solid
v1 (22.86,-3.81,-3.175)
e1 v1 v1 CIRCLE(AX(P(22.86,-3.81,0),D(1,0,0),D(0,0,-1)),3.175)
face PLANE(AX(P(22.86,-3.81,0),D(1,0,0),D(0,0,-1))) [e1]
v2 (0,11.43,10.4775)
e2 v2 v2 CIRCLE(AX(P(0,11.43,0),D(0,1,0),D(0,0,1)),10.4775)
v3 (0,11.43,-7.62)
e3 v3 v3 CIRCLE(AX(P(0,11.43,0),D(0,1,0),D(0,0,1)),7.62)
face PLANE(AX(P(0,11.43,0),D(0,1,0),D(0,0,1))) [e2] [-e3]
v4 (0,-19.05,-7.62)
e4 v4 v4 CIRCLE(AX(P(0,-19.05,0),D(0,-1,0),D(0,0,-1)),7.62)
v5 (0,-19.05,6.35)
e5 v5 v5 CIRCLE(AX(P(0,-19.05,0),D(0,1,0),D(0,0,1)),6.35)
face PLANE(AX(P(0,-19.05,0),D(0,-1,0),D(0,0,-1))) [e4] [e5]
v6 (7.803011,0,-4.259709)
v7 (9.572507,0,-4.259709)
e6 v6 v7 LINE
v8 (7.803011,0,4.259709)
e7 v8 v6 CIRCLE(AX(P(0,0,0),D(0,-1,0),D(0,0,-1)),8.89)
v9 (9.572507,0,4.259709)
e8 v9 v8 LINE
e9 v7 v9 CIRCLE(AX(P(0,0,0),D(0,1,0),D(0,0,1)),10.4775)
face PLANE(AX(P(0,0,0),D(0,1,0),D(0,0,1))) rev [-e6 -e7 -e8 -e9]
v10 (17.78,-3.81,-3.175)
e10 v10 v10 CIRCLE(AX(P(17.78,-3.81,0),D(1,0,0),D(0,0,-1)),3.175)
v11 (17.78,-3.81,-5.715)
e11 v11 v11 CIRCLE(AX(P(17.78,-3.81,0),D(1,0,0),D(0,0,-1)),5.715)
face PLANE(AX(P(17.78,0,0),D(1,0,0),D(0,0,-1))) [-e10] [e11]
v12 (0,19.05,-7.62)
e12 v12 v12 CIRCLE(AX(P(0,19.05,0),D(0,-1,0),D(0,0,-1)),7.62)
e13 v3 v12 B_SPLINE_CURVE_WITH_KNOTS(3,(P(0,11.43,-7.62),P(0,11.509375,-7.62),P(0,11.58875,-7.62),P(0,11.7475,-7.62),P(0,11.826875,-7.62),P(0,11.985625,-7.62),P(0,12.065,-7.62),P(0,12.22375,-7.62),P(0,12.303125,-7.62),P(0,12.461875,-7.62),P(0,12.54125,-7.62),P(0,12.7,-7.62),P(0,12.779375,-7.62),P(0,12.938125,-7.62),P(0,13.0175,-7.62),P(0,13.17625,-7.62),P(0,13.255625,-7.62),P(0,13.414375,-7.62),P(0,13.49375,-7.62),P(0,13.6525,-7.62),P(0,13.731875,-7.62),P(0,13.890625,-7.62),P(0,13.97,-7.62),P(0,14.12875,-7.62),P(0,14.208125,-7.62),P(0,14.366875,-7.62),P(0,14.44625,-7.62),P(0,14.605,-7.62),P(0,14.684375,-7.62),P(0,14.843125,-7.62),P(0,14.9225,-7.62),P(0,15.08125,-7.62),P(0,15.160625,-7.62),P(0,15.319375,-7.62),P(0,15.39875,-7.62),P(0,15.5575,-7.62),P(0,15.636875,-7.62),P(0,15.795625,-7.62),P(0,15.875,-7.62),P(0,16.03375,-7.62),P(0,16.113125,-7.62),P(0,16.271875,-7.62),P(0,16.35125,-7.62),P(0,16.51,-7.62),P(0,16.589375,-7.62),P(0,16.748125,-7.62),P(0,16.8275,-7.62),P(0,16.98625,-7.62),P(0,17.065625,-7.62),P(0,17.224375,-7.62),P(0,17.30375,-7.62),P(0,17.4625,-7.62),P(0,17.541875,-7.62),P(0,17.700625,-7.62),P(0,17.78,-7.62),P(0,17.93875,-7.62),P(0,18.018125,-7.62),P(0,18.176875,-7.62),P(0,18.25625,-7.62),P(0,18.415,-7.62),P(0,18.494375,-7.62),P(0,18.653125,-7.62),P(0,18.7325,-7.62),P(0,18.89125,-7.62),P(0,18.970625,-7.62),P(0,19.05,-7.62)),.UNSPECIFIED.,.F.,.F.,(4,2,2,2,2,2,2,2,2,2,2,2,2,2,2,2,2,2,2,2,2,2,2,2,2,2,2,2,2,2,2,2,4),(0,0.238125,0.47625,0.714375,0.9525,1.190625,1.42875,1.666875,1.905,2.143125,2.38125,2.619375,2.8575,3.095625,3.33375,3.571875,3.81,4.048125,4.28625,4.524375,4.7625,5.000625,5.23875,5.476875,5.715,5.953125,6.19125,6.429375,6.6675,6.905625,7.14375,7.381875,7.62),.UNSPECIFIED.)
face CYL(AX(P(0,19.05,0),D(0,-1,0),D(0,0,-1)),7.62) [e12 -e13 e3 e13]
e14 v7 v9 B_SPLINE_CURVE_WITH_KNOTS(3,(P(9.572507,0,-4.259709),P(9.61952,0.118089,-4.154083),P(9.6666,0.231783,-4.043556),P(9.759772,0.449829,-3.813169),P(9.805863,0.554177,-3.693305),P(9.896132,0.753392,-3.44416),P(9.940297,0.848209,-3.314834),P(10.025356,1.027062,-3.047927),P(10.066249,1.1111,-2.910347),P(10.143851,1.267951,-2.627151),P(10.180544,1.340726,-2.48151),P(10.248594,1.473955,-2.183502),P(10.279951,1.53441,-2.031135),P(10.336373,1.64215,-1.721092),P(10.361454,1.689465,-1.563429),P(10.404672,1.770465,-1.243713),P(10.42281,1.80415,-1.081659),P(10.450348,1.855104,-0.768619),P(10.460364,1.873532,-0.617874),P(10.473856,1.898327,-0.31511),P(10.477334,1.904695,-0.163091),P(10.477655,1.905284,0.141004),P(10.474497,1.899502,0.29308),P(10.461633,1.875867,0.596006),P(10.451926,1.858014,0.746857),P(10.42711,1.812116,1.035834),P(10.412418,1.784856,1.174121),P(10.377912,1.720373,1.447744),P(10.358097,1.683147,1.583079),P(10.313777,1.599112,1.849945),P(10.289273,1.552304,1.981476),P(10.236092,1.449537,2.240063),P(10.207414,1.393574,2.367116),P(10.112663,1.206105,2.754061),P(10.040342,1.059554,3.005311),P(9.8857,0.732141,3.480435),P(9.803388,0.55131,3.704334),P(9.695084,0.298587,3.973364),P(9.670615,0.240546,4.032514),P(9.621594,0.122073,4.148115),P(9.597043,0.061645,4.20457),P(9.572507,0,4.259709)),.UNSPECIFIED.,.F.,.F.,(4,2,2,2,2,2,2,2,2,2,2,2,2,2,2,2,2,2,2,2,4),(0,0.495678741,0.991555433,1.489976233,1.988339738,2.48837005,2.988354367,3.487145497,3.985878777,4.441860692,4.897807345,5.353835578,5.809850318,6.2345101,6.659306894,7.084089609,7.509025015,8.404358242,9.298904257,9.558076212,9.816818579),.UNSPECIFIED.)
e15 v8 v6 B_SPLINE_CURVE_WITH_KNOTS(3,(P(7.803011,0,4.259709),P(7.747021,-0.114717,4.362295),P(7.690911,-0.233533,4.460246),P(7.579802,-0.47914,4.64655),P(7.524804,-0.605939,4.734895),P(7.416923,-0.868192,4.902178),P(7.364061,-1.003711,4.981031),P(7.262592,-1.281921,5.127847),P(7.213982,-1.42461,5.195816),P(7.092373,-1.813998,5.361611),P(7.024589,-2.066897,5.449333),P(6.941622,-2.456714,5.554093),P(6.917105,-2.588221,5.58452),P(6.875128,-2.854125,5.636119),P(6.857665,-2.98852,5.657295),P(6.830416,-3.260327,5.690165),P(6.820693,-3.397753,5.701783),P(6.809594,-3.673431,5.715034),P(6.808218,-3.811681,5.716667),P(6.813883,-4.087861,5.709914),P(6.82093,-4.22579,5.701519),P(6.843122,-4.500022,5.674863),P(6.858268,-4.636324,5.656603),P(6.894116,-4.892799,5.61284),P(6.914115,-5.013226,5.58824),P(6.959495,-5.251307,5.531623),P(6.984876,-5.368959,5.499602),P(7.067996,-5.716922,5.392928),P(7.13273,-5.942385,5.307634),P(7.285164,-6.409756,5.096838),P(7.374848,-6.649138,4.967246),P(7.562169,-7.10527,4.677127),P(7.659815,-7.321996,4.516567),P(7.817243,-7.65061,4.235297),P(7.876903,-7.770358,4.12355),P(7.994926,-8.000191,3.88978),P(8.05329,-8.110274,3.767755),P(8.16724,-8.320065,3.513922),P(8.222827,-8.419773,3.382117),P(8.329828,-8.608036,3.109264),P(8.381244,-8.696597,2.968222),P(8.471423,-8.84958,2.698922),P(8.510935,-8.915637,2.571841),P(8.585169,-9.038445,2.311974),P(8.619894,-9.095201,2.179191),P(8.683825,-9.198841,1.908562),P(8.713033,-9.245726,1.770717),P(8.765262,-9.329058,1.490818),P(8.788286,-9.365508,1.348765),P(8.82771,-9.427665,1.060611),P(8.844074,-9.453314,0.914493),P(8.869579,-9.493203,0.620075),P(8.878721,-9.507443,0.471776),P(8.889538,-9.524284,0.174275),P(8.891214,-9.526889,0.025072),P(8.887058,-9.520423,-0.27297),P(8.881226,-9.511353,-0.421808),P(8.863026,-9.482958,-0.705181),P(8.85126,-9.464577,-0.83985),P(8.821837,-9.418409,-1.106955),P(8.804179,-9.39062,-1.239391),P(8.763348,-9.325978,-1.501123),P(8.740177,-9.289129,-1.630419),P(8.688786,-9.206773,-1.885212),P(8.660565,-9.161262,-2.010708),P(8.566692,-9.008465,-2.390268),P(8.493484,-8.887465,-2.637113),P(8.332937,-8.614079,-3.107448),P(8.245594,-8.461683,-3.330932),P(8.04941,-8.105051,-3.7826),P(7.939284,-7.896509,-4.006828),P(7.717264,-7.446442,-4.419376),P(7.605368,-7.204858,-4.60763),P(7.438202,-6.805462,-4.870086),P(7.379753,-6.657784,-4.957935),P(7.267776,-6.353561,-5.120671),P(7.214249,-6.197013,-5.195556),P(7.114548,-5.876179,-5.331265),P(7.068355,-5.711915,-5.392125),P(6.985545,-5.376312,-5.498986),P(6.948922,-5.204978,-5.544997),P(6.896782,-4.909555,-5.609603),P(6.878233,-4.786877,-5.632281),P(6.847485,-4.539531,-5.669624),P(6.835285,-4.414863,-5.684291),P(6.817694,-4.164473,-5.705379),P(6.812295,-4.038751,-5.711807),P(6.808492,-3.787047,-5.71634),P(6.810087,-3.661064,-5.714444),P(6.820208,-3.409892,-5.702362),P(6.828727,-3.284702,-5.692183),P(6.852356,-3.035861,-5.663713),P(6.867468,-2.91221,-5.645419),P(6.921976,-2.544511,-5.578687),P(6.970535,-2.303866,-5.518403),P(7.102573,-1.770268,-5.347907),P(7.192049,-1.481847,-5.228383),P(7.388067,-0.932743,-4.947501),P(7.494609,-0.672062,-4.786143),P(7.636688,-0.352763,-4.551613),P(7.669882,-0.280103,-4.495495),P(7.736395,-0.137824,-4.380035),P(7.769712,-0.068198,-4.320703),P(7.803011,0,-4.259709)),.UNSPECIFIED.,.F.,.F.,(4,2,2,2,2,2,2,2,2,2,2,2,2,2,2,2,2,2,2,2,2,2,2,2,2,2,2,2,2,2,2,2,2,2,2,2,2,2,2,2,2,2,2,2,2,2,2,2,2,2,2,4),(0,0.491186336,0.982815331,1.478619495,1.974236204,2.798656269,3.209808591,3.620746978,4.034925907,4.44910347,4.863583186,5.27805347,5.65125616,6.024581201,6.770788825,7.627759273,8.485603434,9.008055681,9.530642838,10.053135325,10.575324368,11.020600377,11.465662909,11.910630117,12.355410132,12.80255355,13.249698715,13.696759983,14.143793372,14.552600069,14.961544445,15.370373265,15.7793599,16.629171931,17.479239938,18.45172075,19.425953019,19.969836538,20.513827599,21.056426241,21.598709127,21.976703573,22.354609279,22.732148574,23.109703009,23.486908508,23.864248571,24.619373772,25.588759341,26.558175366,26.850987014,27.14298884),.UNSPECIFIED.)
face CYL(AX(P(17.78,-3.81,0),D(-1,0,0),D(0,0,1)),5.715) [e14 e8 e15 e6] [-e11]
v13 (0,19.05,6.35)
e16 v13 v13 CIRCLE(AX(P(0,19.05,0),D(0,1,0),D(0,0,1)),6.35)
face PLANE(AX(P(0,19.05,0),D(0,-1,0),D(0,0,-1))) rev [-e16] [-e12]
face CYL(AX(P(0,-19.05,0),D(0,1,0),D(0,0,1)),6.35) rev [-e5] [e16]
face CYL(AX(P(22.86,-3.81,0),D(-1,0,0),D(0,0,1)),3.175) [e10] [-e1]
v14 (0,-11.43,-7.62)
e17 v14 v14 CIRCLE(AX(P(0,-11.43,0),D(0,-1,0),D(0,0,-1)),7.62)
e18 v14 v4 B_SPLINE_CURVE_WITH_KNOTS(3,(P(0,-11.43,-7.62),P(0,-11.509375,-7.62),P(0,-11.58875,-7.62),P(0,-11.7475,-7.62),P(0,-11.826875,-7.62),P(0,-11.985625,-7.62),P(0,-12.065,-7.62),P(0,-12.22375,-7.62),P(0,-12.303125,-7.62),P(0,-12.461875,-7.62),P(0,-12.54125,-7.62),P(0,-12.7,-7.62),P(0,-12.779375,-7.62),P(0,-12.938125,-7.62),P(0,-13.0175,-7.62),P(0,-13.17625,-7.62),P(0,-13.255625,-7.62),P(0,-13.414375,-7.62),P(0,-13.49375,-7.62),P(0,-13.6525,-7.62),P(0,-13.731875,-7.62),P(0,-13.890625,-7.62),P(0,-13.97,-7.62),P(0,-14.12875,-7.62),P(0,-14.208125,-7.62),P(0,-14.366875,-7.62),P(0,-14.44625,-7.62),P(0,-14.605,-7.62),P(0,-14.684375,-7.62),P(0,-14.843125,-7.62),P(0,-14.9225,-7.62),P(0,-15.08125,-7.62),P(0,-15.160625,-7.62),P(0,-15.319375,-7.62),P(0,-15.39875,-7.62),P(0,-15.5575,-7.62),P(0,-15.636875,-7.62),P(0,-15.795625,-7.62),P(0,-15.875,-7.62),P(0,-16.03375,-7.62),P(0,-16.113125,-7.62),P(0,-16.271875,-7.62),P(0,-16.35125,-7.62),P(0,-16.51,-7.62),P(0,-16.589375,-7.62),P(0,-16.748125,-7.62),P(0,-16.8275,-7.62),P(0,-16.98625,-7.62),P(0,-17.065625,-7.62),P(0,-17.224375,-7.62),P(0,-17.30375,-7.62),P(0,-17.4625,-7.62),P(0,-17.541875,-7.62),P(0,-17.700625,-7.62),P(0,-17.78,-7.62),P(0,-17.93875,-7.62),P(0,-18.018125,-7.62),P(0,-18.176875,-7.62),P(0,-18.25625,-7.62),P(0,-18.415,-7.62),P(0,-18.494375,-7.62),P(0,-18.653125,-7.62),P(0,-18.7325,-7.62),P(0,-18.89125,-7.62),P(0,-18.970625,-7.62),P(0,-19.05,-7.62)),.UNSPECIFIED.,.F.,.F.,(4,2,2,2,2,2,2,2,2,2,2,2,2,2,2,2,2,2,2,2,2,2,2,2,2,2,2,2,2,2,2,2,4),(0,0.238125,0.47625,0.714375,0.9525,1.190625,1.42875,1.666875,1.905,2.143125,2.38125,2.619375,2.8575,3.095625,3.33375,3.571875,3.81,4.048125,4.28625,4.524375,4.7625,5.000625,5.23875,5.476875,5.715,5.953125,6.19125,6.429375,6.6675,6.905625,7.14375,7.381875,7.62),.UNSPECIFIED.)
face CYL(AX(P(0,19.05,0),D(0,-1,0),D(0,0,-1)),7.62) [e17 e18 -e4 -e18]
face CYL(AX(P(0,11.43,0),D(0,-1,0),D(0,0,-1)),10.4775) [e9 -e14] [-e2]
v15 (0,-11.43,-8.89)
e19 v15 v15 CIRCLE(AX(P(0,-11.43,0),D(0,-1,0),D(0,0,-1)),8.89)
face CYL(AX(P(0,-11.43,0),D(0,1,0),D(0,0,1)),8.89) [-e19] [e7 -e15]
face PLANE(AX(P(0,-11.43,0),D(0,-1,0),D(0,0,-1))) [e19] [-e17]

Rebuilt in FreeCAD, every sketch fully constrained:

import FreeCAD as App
import Part
import Sketcher
Q = App.Units.Quantity

doc = App.newDocument("Part")
body = doc.addObject("PartDesign::Body", "Body")

# Sketch on XZ plane
sketch1 = body.newObject("Sketcher::SketchObject", "Sketch")
sketch1.AttachmentSupport = (doc.getObject("XZ_Plane"), [""])
sketch1.MapMode = "FlatFace"
sketch1.addGeometry(Part.Circle(App.Vector(0, 0, 0), App.Vector(0, 0, 1), 10.4775), False)
sketch1.addConstraint([
    Sketcher.Constraint("Coincident", 0, 3, -1, 1),
    Sketcher.Constraint("Diameter", 0, Q("0.825 in")),
])
pad1 = body.newObject("PartDesign::Pad", "Pad")
pad1.Profile = sketch1
pad1.Length = Q("0.45 in")
pad1.Reversed = True

# Sketch on XZ plane
sketch2 = body.newObject("Sketcher::SketchObject", "Sketch001")
sketch2.AttachmentSupport = (doc.getObject("XZ_Plane"), [""])
sketch2.MapMode = "FlatFace"
sketch2.addGeometry(Part.Circle(App.Vector(0, 0, 0), App.Vector(0, 0, 1), 8.89), False)
sketch2.addConstraint([
    Sketcher.Constraint("Coincident", 0, 3, -1, 1),
    Sketcher.Constraint("Diameter", 0, Q("0.7 in")),
])
pad2 = body.newObject("PartDesign::Pad", "Pad001")
pad2.Profile = sketch2
pad2.Length = Q("0.45 in")

# Sketch on XZ plane
sketch3 = body.newObject("Sketcher::SketchObject", "Sketch002")
sketch3.AttachmentSupport = (doc.getObject("XZ_Plane"), [""])
sketch3.MapMode = "FlatFace"
sketch3.AttachmentOffset = App.Placement(App.Vector(0, 0, 0.45 * 25.4), App.Rotation())
sketch3.addGeometry(Part.Circle(App.Vector(0, 0, 0), App.Vector(0, 0, 1), 7.62), False)
sketch3.addConstraint([
    Sketcher.Constraint("Coincident", 0, 3, -1, 1),
    Sketcher.Constraint("Diameter", 0, Q("0.6 in")),
])
pad3 = body.newObject("PartDesign::Pad", "Pad002")
pad3.Profile = sketch3
pad3.Type = "TwoLengths"
pad3.Length = Q("0.3 in")
pad3.Length2 = Q("1.2 in")

# Sketch on YZ plane
sketch4 = body.newObject("Sketcher::SketchObject", "Sketch003")
sketch4.AttachmentSupport = (doc.getObject("YZ_Plane"), [""])
sketch4.MapMode = "FlatFace"
sketch4.addGeometry(Part.Circle(App.Vector(-3.81, 0, 0), App.Vector(0, 0, 1), 5.715), False)
sketch4.addConstraint([
    Sketcher.Constraint("PointOnObject", 0, 3, -1),
    Sketcher.Constraint("Diameter", 0, Q("0.45 in")),
    Sketcher.Constraint("DistanceX", 0, 3, -1, 1, Q("0.15 in")),
])
pad4 = body.newObject("PartDesign::Pad", "Pad003")
pad4.Profile = sketch4
pad4.Length = Q("0.7 in")

# Sketch on YZ plane
sketch5 = body.newObject("Sketcher::SketchObject", "Sketch004")
sketch5.AttachmentSupport = (doc.getObject("YZ_Plane"), [""])
sketch5.MapMode = "FlatFace"
sketch5.AttachmentOffset = App.Placement(App.Vector(0, 0, 0.7 * 25.4), App.Rotation())
sketch5.addGeometry(Part.Circle(App.Vector(-3.81, 0, 0), App.Vector(0, 0, 1), 3.175), False)
sketch5.addConstraint([
    Sketcher.Constraint("PointOnObject", 0, 3, -1),
    Sketcher.Constraint("Diameter", 0, Q("0.25 in")),
    Sketcher.Constraint("DistanceX", 0, 3, -1, 1, Q("0.15 in")),
])
pad5 = body.newObject("PartDesign::Pad", "Pad004")
pad5.Profile = sketch5
pad5.Length = Q("0.2 in")

# Sketch on XZ plane
sketch6 = body.newObject("Sketcher::SketchObject", "Sketch005")
sketch6.AttachmentSupport = (doc.getObject("XZ_Plane"), [""])
sketch6.MapMode = "FlatFace"
sketch6.AttachmentOffset = App.Placement(App.Vector(0, 0, -0.75 * 25.4), App.Rotation())
sketch6.addGeometry(Part.Circle(App.Vector(0, 0, 0), App.Vector(0, 0, 1), 6.35), False)
sketch6.addConstraint([
    Sketcher.Constraint("Coincident", 0, 3, -1, 1),
    Sketcher.Constraint("Diameter", 0, Q("0.5 in")),
])
pocket1 = body.newObject("PartDesign::Pocket", "Pocket")
pocket1.Profile = sketch6
pocket1.Type = "ThroughAll"
pocket1.Reversed = True

doc.recompute()
